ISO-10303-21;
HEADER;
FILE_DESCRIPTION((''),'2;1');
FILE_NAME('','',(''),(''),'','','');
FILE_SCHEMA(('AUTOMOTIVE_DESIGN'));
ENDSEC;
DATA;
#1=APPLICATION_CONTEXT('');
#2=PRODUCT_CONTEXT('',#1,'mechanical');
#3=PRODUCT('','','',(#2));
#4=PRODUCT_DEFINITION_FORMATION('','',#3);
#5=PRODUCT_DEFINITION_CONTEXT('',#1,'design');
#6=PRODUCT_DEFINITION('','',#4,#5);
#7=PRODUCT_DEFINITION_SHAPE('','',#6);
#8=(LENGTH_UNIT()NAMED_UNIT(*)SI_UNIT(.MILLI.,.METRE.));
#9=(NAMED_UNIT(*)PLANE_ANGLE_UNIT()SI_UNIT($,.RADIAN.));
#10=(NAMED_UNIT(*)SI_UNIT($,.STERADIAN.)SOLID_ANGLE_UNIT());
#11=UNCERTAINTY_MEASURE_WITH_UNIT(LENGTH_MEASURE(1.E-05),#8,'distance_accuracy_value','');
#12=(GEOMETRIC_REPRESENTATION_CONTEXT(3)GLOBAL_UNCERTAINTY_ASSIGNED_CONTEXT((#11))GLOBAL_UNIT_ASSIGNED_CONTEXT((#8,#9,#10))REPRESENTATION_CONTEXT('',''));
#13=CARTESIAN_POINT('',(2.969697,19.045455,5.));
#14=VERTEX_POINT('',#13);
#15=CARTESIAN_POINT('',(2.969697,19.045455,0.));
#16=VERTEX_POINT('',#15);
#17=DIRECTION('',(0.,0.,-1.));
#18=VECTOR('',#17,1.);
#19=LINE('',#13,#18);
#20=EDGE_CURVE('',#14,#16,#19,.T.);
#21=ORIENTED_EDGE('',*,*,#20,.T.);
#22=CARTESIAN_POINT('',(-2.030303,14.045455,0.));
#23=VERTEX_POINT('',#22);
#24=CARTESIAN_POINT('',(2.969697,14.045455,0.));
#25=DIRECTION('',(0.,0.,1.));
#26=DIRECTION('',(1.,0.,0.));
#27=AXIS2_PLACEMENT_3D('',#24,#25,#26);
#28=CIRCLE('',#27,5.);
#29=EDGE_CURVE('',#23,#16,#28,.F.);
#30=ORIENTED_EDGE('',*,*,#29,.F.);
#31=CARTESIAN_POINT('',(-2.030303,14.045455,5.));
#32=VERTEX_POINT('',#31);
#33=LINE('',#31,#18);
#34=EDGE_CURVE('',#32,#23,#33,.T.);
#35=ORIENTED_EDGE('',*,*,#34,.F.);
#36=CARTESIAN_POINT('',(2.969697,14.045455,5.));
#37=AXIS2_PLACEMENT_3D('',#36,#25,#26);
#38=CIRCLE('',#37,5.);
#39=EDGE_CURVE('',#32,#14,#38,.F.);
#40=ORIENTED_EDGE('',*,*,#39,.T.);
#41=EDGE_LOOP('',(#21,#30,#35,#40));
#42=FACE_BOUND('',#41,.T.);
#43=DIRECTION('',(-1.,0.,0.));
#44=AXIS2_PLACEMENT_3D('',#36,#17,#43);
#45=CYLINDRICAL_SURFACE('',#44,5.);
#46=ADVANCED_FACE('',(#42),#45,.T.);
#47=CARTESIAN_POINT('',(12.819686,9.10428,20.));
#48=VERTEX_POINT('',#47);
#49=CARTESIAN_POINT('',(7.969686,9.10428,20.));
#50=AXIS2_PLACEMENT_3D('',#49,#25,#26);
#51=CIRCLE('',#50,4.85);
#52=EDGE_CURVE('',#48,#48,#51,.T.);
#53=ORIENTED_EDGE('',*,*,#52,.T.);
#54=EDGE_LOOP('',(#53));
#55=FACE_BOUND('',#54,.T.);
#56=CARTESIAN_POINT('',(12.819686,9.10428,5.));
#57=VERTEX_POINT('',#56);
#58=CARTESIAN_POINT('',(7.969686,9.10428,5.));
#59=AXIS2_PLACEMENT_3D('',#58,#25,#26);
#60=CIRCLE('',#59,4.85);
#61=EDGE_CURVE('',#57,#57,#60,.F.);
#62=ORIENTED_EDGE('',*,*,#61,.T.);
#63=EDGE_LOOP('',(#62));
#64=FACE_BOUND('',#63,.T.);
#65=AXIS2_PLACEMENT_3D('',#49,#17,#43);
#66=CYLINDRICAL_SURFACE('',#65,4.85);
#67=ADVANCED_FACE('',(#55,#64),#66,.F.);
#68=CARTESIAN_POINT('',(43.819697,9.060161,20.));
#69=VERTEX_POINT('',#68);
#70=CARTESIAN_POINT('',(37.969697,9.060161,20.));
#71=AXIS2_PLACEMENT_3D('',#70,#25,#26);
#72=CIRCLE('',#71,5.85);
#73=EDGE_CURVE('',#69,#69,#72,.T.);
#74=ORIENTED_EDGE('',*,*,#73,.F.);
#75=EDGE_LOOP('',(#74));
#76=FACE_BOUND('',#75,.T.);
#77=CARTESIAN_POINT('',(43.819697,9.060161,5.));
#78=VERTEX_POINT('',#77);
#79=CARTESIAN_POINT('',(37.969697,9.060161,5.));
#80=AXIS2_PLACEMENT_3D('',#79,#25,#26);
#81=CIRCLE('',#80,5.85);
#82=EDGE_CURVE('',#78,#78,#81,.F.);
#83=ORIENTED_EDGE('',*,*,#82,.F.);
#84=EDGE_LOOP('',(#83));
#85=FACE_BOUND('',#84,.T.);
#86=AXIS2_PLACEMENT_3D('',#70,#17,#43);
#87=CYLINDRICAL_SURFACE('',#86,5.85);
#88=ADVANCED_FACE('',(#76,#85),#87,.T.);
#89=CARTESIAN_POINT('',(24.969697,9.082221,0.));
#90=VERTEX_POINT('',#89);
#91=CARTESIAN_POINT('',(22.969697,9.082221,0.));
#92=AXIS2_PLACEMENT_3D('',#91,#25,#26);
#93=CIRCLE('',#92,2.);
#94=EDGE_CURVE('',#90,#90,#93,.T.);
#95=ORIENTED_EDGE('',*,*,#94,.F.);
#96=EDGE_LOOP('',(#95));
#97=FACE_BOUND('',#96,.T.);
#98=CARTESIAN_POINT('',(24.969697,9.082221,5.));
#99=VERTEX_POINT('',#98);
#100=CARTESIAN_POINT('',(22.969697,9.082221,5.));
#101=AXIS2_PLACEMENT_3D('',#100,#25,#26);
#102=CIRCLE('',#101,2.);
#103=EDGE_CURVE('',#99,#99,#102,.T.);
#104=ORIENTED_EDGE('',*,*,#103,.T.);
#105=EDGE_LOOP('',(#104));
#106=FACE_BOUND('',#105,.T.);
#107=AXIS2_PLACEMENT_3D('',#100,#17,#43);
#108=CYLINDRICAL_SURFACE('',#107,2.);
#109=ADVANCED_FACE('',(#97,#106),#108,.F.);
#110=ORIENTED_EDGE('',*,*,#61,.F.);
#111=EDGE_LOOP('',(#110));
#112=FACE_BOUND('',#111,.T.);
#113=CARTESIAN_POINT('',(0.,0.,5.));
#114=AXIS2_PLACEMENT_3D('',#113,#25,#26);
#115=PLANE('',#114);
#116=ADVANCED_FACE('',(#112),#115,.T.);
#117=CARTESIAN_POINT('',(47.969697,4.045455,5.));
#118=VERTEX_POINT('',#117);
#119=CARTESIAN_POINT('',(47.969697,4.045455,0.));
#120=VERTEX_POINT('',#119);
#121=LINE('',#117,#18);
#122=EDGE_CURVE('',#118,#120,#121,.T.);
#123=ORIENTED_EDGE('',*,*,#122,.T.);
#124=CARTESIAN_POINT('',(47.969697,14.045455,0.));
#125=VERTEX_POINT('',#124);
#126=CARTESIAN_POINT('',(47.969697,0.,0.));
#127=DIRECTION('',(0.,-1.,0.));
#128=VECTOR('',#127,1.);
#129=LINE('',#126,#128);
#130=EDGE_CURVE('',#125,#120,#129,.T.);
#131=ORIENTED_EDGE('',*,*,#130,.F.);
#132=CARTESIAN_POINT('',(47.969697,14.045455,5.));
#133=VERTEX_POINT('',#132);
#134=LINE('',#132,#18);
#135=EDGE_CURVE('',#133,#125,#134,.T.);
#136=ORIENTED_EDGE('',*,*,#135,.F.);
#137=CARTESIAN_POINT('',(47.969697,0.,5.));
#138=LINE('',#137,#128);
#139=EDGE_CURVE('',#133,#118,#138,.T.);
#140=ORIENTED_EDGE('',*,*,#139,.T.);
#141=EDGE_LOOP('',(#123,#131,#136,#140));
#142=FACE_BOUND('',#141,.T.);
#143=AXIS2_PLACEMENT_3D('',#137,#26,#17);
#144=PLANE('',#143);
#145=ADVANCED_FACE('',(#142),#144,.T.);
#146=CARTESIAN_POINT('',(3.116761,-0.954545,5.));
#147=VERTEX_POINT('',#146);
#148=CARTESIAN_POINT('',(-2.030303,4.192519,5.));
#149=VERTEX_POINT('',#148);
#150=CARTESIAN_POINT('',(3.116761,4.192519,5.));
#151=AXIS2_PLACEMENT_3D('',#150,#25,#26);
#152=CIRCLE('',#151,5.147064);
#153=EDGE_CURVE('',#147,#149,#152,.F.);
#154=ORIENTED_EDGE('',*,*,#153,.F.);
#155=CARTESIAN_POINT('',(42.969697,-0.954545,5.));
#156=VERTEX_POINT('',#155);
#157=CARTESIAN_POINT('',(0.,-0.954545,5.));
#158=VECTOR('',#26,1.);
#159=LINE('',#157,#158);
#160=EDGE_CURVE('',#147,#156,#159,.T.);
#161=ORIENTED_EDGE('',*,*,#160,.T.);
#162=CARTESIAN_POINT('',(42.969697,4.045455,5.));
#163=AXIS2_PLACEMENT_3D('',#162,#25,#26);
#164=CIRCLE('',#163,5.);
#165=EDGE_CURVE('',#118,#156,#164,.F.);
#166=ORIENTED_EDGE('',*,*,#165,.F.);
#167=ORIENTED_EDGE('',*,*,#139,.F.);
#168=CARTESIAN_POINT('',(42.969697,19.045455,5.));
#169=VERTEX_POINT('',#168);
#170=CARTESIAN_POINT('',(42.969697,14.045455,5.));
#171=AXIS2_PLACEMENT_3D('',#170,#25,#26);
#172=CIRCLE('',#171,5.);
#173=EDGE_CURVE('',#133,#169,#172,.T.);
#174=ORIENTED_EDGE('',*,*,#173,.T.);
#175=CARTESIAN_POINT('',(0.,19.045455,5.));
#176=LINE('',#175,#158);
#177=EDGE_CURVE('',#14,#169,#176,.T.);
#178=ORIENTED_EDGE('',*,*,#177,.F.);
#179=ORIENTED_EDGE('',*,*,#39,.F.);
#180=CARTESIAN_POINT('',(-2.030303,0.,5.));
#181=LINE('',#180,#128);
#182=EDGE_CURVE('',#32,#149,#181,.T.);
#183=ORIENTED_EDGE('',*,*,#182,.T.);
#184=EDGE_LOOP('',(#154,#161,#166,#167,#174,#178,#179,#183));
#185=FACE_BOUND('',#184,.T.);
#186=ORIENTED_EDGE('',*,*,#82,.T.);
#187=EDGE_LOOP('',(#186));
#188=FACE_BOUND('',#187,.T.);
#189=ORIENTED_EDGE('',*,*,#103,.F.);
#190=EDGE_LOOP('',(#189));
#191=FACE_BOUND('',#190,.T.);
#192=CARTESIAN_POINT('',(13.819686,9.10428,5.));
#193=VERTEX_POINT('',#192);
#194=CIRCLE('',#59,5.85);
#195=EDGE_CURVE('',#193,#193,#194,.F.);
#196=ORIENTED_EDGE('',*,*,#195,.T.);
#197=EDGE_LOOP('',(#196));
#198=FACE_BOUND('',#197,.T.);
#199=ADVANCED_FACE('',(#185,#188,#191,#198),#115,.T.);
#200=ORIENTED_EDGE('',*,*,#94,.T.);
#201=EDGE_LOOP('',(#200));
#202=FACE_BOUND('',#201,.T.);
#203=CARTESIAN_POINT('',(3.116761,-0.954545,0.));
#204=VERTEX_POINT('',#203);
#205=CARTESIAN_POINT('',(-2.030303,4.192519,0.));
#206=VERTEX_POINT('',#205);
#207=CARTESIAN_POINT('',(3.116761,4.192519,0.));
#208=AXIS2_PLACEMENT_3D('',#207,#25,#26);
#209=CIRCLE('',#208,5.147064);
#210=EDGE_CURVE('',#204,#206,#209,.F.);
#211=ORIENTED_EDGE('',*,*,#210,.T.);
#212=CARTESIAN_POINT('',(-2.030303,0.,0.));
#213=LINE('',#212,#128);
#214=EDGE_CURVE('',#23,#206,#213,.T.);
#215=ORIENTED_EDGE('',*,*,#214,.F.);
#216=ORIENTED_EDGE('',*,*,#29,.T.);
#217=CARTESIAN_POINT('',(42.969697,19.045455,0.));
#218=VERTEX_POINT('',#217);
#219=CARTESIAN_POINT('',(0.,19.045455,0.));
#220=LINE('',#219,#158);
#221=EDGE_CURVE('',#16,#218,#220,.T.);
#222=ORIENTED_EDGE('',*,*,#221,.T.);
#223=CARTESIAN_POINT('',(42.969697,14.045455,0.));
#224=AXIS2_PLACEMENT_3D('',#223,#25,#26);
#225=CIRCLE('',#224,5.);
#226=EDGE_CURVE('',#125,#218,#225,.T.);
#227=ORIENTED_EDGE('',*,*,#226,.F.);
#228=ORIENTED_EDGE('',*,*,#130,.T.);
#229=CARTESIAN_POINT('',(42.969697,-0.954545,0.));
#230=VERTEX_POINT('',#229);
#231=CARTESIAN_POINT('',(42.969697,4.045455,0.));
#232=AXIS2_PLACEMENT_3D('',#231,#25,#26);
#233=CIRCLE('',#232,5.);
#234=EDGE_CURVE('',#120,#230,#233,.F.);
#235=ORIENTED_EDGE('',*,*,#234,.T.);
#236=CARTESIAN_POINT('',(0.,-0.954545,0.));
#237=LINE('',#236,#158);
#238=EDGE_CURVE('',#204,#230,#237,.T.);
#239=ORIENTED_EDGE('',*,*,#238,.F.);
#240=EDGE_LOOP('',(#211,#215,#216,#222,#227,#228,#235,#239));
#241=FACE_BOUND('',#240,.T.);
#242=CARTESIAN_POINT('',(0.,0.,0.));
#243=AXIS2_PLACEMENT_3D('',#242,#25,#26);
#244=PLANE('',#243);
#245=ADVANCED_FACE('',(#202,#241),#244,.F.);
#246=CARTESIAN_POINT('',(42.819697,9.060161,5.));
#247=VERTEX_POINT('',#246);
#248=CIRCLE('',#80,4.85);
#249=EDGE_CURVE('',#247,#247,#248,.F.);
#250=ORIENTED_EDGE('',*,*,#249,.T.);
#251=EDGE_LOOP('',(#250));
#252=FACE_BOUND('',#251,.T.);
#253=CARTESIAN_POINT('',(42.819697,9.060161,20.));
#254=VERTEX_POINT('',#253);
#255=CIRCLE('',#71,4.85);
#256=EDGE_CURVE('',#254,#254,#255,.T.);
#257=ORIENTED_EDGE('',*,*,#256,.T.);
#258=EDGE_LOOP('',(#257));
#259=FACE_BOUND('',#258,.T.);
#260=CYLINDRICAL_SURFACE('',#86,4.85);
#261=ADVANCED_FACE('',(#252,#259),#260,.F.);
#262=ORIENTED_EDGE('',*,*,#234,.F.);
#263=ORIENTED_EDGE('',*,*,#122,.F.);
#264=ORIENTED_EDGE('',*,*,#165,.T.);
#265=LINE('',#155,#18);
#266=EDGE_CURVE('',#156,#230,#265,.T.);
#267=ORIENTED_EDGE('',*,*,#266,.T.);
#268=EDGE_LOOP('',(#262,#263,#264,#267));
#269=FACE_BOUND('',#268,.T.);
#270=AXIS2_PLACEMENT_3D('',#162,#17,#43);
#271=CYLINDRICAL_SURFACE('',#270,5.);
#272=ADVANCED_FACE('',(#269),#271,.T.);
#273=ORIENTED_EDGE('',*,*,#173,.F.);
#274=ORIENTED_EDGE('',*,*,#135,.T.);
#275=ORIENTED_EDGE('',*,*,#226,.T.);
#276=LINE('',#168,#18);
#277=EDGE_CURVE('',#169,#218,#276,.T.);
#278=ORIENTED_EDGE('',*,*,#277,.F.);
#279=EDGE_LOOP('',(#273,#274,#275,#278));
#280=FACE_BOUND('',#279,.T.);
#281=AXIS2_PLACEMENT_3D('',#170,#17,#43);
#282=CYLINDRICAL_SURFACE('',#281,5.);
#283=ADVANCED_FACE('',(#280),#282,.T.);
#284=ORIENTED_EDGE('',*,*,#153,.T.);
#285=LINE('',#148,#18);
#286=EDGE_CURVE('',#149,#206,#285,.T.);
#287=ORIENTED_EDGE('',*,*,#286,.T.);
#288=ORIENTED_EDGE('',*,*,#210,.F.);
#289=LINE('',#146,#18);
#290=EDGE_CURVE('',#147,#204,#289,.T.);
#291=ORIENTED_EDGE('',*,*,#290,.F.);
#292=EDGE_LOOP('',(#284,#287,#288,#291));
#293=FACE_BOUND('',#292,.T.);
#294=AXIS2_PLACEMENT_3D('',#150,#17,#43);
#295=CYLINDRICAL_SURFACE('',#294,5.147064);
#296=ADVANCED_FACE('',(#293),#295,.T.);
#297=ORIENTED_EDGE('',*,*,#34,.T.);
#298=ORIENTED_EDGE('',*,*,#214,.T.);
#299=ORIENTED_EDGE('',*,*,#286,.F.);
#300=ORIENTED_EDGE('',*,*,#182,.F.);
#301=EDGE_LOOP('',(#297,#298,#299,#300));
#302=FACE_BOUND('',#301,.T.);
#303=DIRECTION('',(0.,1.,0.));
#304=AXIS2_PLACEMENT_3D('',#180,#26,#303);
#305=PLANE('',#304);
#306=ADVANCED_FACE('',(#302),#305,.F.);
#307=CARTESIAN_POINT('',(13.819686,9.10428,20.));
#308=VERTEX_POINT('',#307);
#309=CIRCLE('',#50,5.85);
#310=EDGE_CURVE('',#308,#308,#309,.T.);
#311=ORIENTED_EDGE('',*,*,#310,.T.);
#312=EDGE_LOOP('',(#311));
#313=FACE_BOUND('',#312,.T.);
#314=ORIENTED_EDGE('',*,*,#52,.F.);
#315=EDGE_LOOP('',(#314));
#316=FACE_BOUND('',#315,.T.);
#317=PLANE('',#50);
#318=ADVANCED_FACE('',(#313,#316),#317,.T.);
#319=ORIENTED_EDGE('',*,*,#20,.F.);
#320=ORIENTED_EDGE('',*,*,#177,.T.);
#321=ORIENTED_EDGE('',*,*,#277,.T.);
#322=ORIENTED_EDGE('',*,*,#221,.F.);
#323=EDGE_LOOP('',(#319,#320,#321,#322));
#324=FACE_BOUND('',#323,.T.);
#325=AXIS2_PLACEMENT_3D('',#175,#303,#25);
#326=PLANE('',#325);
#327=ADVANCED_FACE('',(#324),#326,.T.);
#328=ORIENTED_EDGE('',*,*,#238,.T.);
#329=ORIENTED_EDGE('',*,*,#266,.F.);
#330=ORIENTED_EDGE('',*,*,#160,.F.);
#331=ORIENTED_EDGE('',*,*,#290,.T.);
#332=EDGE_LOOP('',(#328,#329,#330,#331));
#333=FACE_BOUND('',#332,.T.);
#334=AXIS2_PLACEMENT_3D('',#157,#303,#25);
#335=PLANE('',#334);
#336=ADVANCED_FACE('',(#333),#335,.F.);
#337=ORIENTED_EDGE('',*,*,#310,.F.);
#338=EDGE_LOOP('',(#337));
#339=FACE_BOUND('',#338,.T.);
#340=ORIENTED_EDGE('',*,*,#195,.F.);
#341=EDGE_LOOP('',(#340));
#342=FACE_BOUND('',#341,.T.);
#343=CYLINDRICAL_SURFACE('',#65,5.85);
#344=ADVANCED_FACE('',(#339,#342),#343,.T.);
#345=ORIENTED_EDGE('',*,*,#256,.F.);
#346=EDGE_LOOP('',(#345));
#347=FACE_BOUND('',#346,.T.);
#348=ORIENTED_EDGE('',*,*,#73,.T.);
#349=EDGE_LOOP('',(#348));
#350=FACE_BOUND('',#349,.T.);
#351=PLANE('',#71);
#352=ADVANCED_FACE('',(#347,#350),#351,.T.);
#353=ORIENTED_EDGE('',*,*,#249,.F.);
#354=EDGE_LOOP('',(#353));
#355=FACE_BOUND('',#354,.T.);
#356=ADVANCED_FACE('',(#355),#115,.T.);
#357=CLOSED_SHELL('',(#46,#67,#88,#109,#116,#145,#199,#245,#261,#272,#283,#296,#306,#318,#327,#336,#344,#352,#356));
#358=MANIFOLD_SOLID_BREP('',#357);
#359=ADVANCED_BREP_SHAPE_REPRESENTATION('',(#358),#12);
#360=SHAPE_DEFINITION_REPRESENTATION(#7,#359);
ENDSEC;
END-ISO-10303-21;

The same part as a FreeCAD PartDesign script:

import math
import FreeCAD as App
import Part
import Sketcher
from FreeCAD import Vector

doc = App.newDocument("Part")
body = doc.addObject("PartDesign::Body", "Body")

# Sketch on XY plane
sketch1 = body.newObject("Sketcher::SketchObject", "Sketch")
sketch1.AttachmentSupport = (doc.getObject("XY_Plane"), [""])
sketch1.MapMode = "FlatFace"
sketch1.addGeometry([
    Part.LineSegment(Vector(43, 19, 0), Vector(3, 19, 0)),  # 0
    Part.ArcOfCircle(Part.Circle(Vector(3, 14, 0), Vector(0, 0, 1), 5), math.radians(90), math.radians(180)),  # 1
    Part.LineSegment(Vector(-2, 14, 0), Vector(-2, 4.2, 0)),  # 2
    Part.ArcOfCircle(Part.Circle(Vector(3.1, 4.2, 0), Vector(0, 0, 1), 5.1), math.radians(-180), math.radians(-90)),  # 3
    Part.LineSegment(Vector(3.1, -1, 0), Vector(43, -1, 0)),  # 4
    Part.ArcOfCircle(Part.Circle(Vector(43, 4, 0), Vector(0, 0, 1), 5), math.radians(-90), math.radians(0)),  # 5
    Part.LineSegment(Vector(48, 4, 0), Vector(48, 14, 0)),  # 6
    Part.ArcOfCircle(Part.Circle(Vector(43, 14, 0), Vector(0, 0, 1), 5), math.radians(0), math.radians(90)),  # 7
    Part.Circle(Vector(23, 9.1, 0), Vector(0, 0, 1), 2),  # 8
], False)
sketch1.addConstraint([
    Sketcher.Constraint("Tangent", 0, 2, 1, 1),
    Sketcher.Constraint("Tangent", 1, 2, 2, 1),
    Sketcher.Constraint("Tangent", 2, 2, 3, 1),
    Sketcher.Constraint("Tangent", 3, 2, 4, 1),
    Sketcher.Constraint("Tangent", 4, 2, 5, 1),
    Sketcher.Constraint("Tangent", 5, 2, 6, 1),
    Sketcher.Constraint("Tangent", 6, 2, 7, 1),
    Sketcher.Constraint("Tangent", 7, 2, 0, 1),
    Sketcher.Constraint("Horizontal", 0),
    Sketcher.Constraint("Vertical", 2),
    Sketcher.Constraint("Horizontal", 4),
    Sketcher.Constraint("Vertical", 6),
    Sketcher.Constraint("Equal", 1, 5),
    Sketcher.Constraint("Equal", 5, 7),
    Sketcher.Constraint("Diameter", 8, 4.0),
    Sketcher.Constraint("Radius", 1, 5.0),
    Sketcher.Constraint("DistanceX", 0, 2, 0, 1, 40.0),
    Sketcher.Constraint("DistanceY", 6, 1, 6, 2, 10.0),
    Sketcher.Constraint("DistanceX", 1, 3, 8, 3, 20.0),
    Sketcher.Constraint("Radius", 3, 5.147064),
    Sketcher.Constraint("DistanceY", 3, 3, 8, 3, 4.889702),
    Sketcher.Constraint("DistanceX", -1, 1, 3, 3, 3.116761),
    Sketcher.Constraint("DistanceY", -1, 1, 3, 3, 4.192519),
])
pad1 = body.newObject("PartDesign::Pad", "Pad")
pad1.Profile = sketch1
pad1.Length = 5

# Sketch on XY plane
sketch2 = body.newObject("Sketcher::SketchObject", "Sketch001")
sketch2.AttachmentSupport = (doc.getObject("XY_Plane"), [""])
sketch2.MapMode = "FlatFace"
sketch2.addGeometry([
    Part.Circle(Vector(8, 9.1, 0), Vector(0, 0, 1), 5.8),
    Part.Circle(Vector(8, 9.1, 0), Vector(0, 0, 1), 4.8),
    Part.Circle(Vector(38, 9.1, 0), Vector(0, 0, 1), 5.8),
    Part.Circle(Vector(38, 9.1, 0), Vector(0, 0, 1), 4.8),
], False)
sketch2.addConstraint([
    Sketcher.Constraint("Coincident", 1, 3, 0, 3),
    Sketcher.Constraint("Coincident", 3, 3, 2, 3),
    Sketcher.Constraint("Equal", 0, 2),
    Sketcher.Constraint("Equal", 1, 3),
    Sketcher.Constraint("Diameter", 0, 11.7),
    Sketcher.Constraint("Diameter", 1, 9.7),
    Sketcher.Constraint("DistanceY", -1, 1, 0, 3, 9.10428),
    Sketcher.Constraint("DistanceY", -1, 1, 2, 3, 9.060161),
    Sketcher.Constraint("DistanceX", 0, 3, 2, 3, 30.000011),
    Sketcher.Constraint("DistanceX", -1, 1, 0, 3, 7.969686),
])
pad2 = body.newObject("PartDesign::Pad", "Pad001")
pad2.Profile = sketch2
pad2.Length = 20

doc.recompute()
